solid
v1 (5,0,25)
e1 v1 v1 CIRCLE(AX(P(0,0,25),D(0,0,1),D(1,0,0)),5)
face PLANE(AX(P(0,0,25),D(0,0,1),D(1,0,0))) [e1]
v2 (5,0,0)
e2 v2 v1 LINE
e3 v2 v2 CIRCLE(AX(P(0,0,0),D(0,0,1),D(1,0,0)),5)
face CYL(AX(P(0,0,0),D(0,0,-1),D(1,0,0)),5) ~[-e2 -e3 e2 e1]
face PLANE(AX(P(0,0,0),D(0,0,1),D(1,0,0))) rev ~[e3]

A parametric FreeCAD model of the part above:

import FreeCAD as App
import Part
import Sketcher

V = App.Vector

doc = App.newDocument("Part")
body = doc.addObject("PartDesign::Body", "Body")

# Sketch on XY plane
sketch1 = doc.addObject("Sketcher::SketchObject", "Sketch")
body.addObject(sketch1)
sketch1.AttachmentSupport = (doc.XY_Plane, [""])
sketch1.MapMode = "FlatFace"
sketch1.addGeometry(Part.Circle(V(0, 0, 0), V(0, 0, 1), 5), False)
sketch1.addConstraint([
    Sketcher.Constraint("Coincident", 0, 3, -1, 1),
    Sketcher.Constraint("Diameter", 0, 10.0),
])
pad1 = doc.addObject("PartDesign::Pad", "Pad")
body.addObject(pad1)
pad1.Profile = sketch1
pad1.Length = 25

doc.recompute()
